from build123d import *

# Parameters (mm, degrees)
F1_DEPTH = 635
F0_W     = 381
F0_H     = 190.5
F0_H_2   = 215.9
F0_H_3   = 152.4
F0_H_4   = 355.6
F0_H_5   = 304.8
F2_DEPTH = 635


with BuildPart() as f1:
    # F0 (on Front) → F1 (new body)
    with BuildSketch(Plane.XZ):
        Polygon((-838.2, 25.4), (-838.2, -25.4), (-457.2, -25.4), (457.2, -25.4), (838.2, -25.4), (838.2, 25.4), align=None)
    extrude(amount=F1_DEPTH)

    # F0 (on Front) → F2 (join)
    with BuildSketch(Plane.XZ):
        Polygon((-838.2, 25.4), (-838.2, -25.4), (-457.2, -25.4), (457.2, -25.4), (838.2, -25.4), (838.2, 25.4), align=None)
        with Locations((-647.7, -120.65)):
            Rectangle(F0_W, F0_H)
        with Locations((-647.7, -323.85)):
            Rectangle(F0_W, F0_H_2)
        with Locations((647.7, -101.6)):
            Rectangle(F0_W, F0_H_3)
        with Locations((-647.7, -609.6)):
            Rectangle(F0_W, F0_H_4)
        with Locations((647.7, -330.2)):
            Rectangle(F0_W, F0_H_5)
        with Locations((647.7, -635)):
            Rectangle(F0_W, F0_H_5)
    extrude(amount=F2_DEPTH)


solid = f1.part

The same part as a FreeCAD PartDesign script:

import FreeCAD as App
import Part
import Sketcher
Q = App.Units.Quantity

doc = App.newDocument("Part")
body = doc.addObject("PartDesign::Body", "Body")

# Sketch on XZ plane
sketch1 = body.newObject("Sketcher::SketchObject", "Sketch")
sketch1.AttachmentSupport = (doc.getObject("XZ_Plane"), [""])
sketch1.MapMode = "FlatFace"
sketch1.addGeometry([
    Part.LineSegment(App.Vector(-838, 25, 0), App.Vector(-838, -25, 0)),
    Part.LineSegment(App.Vector(-838, -25, 0), App.Vector(838, -25, 0)),
    Part.LineSegment(App.Vector(838, -25, 0), App.Vector(838, 25, 0)),
    Part.LineSegment(App.Vector(838, 25, 0), App.Vector(-838, 25, 0)),
], False)
sketch1.addConstraint([
    Sketcher.Constraint("Coincident", 0, 2, 1, 1),
    Sketcher.Constraint("Coincident", 1, 2, 2, 1),
    Sketcher.Constraint("Coincident", 2, 2, 3, 1),
    Sketcher.Constraint("Coincident", 3, 2, 0, 1),
    Sketcher.Constraint("Vertical", 0),
    Sketcher.Constraint("Horizontal", 1),
    Sketcher.Constraint("Vertical", 2),
    Sketcher.Constraint("Horizontal", 3),
    Sketcher.Constraint("Symmetric", 0, 2, 2, 2, -1, 1),
    Sketcher.Constraint("DistanceX", 1, 1, 1, 2, Q("66 in")),
    Sketcher.Constraint("DistanceY", 0, 2, 0, 1, Q("2 in")),
])
pad1 = body.newObject("PartDesign::Pad", "Pad")
pad1.Profile = sketch1
pad1.Length = Q("25 in")

# Sketch on XZ plane
sketch2 = body.newObject("Sketcher::SketchObject", "Sketch001")
sketch2.AttachmentSupport = (doc.getObject("XZ_Plane"), [""])
sketch2.MapMode = "FlatFace"
sketch2.addGeometry([
    Part.LineSegment(App.Vector(-838, 25, 0), App.Vector(-838, -787, 0)),  # 0
    Part.LineSegment(App.Vector(-838, -787, 0), App.Vector(-457, -787, 0)),  # 1
    Part.LineSegment(App.Vector(-457, -787, 0), App.Vector(-457, -25, 0)),  # 2
    Part.LineSegment(App.Vector(-457, -25, 0), App.Vector(457, -25, 0)),  # 3
    Part.LineSegment(App.Vector(457, -25, 0), App.Vector(457, -787, 0)),  # 4
    Part.LineSegment(App.Vector(457, -787, 0), App.Vector(838, -787, 0)),  # 5
    Part.LineSegment(App.Vector(838, -787, 0), App.Vector(838, 25, 0)),  # 6
    Part.LineSegment(App.Vector(838, 25, 0), App.Vector(-838, 25, 0)),  # 7
], False)
sketch2.addConstraint([
    Sketcher.Constraint("Coincident", 0, 2, 1, 1),
    Sketcher.Constraint("Coincident", 1, 2, 2, 1),
    Sketcher.Constraint("Coincident", 2, 2, 3, 1),
    Sketcher.Constraint("Coincident", 3, 2, 4, 1),
    Sketcher.Constraint("Coincident", 4, 2, 5, 1),
    Sketcher.Constraint("Coincident", 5, 2, 6, 1),
    Sketcher.Constraint("Coincident", 6, 2, 7, 1),
    Sketcher.Constraint("Coincident", 7, 2, 0, 1),
    Sketcher.Constraint("Vertical", 0),
    Sketcher.Constraint("Horizontal", 1),
    Sketcher.Constraint("Vertical", 2),
    Sketcher.Constraint("Horizontal", 3),
    Sketcher.Constraint("Vertical", 4),
    Sketcher.Constraint("Horizontal", 5),
    Sketcher.Constraint("Vertical", 6),
    Sketcher.Constraint("Horizontal", 7),
    Sketcher.Constraint("Symmetric", 1, 2, 4, 2, -2),
    Sketcher.Constraint("Equal", 1, 5),
    Sketcher.Constraint("DistanceX", 1, 1, 1, 2, Q("15 in")),
    Sketcher.Constraint("DistanceX", 3, 1, 3, 2, Q("36 in")),
    Sketcher.Constraint("DistanceY", 0, 2, 0, 1, Q("32 in")),
    Sketcher.Constraint("DistanceY", 2, 1, 2, 2, Q("30 in")),
    Sketcher.Constraint("DistanceY", 0, 2, -1, 1, Q("31 in")),
])
pad2 = body.newObject("PartDesign::Pad", "Pad001")
pad2.Profile = sketch2
pad2.Length = Q("25 in")

doc.recompute()
